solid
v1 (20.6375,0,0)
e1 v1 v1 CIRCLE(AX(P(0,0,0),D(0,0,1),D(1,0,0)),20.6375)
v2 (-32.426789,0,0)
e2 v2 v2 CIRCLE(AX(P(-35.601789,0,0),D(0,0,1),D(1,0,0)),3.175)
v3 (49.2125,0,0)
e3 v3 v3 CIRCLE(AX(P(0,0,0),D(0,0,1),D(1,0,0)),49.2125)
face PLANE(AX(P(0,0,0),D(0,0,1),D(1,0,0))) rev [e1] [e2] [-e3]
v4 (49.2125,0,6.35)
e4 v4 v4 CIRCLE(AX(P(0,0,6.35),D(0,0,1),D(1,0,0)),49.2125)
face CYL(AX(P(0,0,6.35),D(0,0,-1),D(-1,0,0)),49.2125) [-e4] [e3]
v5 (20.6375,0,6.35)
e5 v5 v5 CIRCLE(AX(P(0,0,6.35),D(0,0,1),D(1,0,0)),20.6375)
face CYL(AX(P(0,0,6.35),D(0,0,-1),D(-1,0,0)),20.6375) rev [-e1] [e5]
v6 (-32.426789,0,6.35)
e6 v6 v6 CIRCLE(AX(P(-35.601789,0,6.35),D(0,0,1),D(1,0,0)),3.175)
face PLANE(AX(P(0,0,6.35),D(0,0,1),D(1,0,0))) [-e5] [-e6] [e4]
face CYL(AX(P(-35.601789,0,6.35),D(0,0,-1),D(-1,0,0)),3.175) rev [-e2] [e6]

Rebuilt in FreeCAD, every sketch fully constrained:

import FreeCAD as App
import Part
import Sketcher
Q = App.Units.Quantity

doc = App.newDocument("Part")
body = doc.addObject("PartDesign::Body", "Body")

# Sketch on XY plane
sketch1 = body.newObject("Sketcher::SketchObject", "Sketch")
sketch1.AttachmentSupport = (doc.getObject("XY_Plane"), [""])
sketch1.MapMode = "FlatFace"
sketch1.addGeometry(Part.Circle(App.Vector(0, 0, 0), App.Vector(0, 0, 1), 49.2125), False)
sketch1.addGeometry(Part.Circle(App.Vector(-35.601789, 0, 0), App.Vector(0, 0, 1), 3.175), False)
sketch1.addGeometry(Part.Circle(App.Vector(0, 0, 0), App.Vector(0, 0, 1), 20.6375), False)
sketch1.addConstraint(Sketcher.Constraint("Coincident", 0, 3, -1, 1))
sketch1.addConstraint(Sketcher.Constraint("Coincident", 2, 3, -1, 1))
sketch1.addConstraint(Sketcher.Constraint("PointOnObject", 1, 3, -1))
sketch1.addConstraint(Sketcher.Constraint("Diameter", 1, Q("0.25 in")))
sketch1.addConstraint(Sketcher.Constraint("Diameter", 0, Q("3.875 in")))
sketch1.addConstraint(Sketcher.Constraint("Diameter", 2, Q("1.625 in")))
sketch1.addConstraint(Sketcher.Constraint("DistanceX", 1, 3, -1, 1, Q("35.601789 mm")))
pad1 = body.newObject("PartDesign::Pad", "Pad")
pad1.Profile = sketch1
pad1.Length = Q("0.25 in")

doc.recompute()
